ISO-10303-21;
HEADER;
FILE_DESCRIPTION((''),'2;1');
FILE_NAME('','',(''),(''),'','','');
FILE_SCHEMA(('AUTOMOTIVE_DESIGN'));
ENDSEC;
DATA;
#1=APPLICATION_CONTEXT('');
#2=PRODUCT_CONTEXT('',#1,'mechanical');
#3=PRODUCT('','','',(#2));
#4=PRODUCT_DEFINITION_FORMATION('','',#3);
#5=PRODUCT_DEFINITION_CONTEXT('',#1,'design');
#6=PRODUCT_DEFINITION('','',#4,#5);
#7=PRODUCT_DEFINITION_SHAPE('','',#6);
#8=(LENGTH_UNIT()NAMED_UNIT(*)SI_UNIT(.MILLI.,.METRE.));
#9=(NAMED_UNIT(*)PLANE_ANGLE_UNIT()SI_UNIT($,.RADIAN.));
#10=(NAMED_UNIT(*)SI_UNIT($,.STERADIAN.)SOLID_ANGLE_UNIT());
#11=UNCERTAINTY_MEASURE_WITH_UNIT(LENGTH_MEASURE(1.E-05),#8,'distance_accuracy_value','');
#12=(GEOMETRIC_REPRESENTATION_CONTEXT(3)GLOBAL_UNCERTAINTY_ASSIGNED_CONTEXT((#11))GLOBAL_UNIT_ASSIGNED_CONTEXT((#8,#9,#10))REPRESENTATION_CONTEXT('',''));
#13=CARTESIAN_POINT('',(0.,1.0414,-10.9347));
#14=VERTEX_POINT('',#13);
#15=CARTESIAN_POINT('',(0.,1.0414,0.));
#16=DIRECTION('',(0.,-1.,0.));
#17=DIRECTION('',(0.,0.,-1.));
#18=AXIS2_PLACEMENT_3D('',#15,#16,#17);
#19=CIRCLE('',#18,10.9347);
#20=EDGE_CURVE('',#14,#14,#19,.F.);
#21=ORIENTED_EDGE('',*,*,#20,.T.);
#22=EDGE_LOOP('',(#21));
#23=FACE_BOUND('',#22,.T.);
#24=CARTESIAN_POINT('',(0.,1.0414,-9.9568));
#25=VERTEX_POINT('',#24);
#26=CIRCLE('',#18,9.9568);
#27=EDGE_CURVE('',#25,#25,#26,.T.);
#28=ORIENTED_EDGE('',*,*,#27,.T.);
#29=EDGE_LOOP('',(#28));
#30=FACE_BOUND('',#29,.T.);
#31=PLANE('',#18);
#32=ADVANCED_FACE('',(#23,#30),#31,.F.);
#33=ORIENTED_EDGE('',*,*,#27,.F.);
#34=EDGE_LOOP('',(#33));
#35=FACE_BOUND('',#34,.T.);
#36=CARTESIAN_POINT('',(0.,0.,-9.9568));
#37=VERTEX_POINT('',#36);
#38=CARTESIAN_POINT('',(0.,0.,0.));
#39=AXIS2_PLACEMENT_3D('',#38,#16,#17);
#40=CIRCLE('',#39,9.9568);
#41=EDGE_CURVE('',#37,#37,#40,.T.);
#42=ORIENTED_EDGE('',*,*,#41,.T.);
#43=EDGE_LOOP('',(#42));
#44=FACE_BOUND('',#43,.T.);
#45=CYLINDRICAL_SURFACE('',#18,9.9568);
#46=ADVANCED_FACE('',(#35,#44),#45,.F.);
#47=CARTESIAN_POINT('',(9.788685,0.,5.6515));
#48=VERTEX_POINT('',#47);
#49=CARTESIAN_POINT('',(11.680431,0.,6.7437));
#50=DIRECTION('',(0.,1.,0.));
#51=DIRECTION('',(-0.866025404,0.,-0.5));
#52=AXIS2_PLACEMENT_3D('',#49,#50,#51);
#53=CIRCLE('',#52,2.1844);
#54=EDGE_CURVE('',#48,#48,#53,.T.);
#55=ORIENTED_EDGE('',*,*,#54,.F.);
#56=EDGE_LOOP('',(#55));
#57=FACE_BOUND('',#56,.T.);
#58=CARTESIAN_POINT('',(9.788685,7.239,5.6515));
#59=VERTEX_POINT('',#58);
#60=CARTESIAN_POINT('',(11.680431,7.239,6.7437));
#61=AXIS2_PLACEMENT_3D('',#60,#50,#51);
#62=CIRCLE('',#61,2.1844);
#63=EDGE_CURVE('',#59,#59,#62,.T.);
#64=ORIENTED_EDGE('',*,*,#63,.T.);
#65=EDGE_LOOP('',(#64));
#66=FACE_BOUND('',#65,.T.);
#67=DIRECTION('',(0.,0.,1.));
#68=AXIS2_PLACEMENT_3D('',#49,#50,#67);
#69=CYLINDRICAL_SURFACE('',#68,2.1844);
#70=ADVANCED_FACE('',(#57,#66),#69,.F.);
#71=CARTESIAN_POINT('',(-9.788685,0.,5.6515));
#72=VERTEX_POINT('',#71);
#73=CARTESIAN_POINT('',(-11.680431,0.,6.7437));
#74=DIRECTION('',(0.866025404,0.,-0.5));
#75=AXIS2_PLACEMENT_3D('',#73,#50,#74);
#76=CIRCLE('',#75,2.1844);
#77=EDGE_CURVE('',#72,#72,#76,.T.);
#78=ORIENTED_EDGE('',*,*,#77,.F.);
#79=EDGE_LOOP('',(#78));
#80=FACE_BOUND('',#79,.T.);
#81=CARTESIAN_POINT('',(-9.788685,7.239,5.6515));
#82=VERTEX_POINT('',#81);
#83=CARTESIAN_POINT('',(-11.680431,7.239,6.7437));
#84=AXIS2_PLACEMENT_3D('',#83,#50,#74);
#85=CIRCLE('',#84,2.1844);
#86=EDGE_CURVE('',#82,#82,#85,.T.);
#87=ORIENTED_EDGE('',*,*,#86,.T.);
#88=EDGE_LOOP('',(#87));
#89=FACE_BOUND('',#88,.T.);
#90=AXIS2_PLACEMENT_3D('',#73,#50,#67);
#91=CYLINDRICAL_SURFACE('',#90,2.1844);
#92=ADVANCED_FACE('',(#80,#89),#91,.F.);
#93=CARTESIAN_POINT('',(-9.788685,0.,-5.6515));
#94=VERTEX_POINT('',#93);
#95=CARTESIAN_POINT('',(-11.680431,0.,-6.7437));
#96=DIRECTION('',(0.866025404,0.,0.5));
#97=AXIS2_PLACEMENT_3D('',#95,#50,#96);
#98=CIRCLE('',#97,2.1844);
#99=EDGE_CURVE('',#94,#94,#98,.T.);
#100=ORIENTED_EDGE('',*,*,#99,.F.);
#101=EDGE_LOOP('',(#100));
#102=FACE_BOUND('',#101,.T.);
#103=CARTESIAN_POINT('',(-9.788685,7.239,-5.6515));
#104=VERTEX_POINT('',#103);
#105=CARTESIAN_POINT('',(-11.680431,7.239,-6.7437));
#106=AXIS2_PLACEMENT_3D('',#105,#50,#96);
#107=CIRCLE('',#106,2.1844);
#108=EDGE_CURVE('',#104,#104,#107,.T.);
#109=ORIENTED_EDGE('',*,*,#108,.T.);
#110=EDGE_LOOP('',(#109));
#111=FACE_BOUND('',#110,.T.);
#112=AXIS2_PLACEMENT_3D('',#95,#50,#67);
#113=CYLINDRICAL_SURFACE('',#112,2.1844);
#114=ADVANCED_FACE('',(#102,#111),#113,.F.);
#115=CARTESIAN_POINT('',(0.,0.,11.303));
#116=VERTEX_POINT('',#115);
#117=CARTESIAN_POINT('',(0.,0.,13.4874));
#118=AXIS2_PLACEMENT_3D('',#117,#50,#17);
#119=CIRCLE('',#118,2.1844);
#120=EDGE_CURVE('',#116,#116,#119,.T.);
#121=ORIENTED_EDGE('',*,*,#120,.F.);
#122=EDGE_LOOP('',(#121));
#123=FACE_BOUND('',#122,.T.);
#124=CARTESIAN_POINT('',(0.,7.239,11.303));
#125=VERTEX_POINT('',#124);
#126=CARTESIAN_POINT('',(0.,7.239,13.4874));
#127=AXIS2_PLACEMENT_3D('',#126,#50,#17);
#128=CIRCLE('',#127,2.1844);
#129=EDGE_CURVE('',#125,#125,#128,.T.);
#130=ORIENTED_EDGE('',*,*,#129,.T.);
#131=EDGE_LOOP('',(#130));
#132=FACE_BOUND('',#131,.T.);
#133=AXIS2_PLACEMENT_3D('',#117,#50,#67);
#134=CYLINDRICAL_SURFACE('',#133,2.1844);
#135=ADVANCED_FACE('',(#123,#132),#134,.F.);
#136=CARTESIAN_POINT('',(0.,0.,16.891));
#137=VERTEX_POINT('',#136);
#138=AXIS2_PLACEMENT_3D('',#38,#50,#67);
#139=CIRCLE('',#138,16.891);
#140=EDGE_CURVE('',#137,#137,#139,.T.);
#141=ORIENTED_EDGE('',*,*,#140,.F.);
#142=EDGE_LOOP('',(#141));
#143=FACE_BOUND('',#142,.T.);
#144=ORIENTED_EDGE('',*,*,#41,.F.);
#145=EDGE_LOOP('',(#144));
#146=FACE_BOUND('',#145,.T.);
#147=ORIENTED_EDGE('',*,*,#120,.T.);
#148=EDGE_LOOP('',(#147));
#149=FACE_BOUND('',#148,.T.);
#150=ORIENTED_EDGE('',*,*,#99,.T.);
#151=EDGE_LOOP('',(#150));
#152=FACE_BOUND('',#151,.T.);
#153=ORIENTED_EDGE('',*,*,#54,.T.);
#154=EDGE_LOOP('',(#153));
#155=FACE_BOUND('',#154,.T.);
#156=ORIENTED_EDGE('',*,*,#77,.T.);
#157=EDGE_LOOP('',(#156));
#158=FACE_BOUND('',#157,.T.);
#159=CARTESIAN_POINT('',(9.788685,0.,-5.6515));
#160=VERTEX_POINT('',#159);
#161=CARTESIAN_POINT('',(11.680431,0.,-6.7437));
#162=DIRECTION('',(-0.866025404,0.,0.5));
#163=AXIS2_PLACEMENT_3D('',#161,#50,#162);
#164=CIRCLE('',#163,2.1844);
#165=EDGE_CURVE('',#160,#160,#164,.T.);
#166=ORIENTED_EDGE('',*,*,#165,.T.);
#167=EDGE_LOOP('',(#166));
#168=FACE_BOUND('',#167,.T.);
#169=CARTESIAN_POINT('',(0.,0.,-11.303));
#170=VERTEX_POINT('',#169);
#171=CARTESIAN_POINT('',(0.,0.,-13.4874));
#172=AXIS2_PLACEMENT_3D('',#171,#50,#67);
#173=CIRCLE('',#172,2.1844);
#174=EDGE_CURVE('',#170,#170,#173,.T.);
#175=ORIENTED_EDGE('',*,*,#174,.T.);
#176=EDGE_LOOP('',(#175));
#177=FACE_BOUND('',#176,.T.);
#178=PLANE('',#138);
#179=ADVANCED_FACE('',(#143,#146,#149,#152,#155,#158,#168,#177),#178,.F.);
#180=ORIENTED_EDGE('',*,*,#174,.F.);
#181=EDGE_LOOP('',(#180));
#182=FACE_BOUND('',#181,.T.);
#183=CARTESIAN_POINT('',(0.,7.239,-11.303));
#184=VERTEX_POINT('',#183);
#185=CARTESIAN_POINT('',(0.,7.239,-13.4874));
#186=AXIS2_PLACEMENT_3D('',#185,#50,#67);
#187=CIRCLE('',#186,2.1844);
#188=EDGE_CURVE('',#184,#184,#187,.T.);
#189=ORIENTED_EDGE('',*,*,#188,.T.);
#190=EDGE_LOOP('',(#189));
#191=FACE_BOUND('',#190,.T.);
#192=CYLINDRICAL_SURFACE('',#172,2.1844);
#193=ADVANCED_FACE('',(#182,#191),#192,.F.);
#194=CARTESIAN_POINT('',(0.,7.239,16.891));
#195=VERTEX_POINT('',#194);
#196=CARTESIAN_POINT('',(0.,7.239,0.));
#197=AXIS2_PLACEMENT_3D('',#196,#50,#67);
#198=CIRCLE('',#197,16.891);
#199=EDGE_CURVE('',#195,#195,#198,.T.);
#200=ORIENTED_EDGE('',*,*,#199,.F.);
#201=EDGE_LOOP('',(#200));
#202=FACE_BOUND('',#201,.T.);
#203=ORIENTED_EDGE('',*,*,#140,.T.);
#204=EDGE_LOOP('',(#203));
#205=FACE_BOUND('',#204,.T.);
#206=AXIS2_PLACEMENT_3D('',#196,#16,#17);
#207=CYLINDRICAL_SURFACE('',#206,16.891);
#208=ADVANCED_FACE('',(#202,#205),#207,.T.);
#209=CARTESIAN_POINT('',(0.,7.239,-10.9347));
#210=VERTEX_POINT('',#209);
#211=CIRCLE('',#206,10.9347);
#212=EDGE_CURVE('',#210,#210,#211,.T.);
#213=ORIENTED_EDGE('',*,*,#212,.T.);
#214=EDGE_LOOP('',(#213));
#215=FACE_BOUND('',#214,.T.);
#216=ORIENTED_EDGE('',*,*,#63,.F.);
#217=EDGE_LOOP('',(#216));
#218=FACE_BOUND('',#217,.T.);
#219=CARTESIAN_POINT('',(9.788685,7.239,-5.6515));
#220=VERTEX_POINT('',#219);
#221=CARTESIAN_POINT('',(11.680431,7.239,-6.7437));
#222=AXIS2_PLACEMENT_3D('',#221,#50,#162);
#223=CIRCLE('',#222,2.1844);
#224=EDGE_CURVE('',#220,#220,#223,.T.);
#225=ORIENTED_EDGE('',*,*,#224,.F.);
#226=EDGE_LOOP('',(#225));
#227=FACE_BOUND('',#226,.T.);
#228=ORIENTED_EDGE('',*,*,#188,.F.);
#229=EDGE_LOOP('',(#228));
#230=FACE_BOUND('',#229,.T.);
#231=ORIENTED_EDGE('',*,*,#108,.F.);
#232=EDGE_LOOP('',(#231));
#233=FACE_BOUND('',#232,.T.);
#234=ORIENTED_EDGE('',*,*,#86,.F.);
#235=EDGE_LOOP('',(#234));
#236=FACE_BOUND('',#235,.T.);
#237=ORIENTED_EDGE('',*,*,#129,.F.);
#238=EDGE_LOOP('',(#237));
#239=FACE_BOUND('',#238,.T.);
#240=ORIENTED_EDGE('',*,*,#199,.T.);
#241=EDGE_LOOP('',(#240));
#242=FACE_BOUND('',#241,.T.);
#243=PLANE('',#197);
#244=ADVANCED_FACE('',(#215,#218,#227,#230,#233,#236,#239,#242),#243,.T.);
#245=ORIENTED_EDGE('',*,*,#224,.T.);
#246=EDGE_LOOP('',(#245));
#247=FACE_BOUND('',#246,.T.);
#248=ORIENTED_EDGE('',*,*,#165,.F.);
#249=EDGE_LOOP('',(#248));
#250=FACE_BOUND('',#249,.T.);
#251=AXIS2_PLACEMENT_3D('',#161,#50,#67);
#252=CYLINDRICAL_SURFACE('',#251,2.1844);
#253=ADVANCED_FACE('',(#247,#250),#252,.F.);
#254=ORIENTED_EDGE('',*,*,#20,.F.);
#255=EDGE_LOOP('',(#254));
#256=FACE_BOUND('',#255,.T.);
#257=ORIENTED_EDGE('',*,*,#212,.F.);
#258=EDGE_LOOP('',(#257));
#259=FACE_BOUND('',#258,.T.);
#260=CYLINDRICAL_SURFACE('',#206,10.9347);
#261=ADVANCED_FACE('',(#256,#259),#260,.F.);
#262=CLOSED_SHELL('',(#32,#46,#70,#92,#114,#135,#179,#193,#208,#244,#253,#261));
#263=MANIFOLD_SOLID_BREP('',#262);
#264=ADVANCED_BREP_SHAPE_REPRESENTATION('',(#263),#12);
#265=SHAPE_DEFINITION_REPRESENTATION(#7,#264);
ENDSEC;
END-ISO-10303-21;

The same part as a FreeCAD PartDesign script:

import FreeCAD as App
import Part
import Sketcher
Q = App.Units.Quantity

doc = App.newDocument("Part")
body = doc.addObject("PartDesign::Body", "Body")

# Sketch on XZ plane
sketch1 = doc.addObject("Sketcher::SketchObject", "Sketch")
body.addObject(sketch1)
sketch1.AttachmentSupport = (doc.XZ_Plane, [""])
sketch1.MapMode = "FlatFace"
sketch1.addGeometry(Part.Circle(App.Vector(0, 0, 0), App.Vector(0, 0, 1), 17), False)
sketch1.addConstraint(Sketcher.Constraint("Coincident", 0, 3, -1, 1))
sketch1.addConstraint(Sketcher.Constraint("Diameter", 0, Q("1.33 in")))
pad1 = doc.addObject("PartDesign::Pad", "Pad")
body.addObject(pad1)
pad1.Profile = sketch1
pad1.Length = Q("0.285 in")
pad1.Reversed = True

# Sketch on XZ plane
sketch2 = doc.addObject("Sketcher::SketchObject", "Sketch001")
body.addObject(sketch2)
sketch2.AttachmentSupport = (doc.XZ_Plane, [""])
sketch2.MapMode = "FlatFace"
sketch2.addGeometry(Part.Circle(App.Vector(0, 0, 0), App.Vector(0, 0, 1), 11), False)
sketch2.addConstraint(Sketcher.Constraint("Coincident", 0, 3, -1, 1))
sketch2.addConstraint(Sketcher.Constraint("Diameter", 0, Q("0.861 in")))
pocket1 = doc.addObject("PartDesign::Pocket", "Pocket")
body.addObject(pocket1)
pocket1.Profile = sketch2
pocket1.Type = "ThroughAll"

# Sketch on XZ plane
sketch3 = doc.addObject("Sketcher::SketchObject", "Sketch002")
body.addObject(sketch3)
sketch3.AttachmentSupport = (doc.XZ_Plane, [""])
sketch3.MapMode = "FlatFace"
sketch3.addGeometry(Part.Circle(App.Vector(0, 0, 0), App.Vector(0, 0, 1), 11), False)
sketch3.addGeometry(Part.Circle(App.Vector(0, 0, 0), App.Vector(0, 0, 1), 10), False)
sketch3.addConstraint(Sketcher.Constraint("Coincident", 0, 3, -1, 1))
sketch3.addConstraint(Sketcher.Constraint("Coincident", 1, 3, -1, 1))
sketch3.addConstraint(Sketcher.Constraint("Diameter", 0, Q("0.861 in")))
sketch3.addConstraint(Sketcher.Constraint("Diameter", 1, Q("0.784 in")))
pad2 = doc.addObject("PartDesign::Pad", "Pad001")
body.addObject(pad2)
pad2.Profile = sketch3
pad2.Length = Q("0.041 in")
pad2.Reversed = True

# Sketch on XZ plane
sketch4 = doc.addObject("Sketcher::SketchObject", "Sketch003")
body.addObject(sketch4)
sketch4.AttachmentSupport = (doc.XZ_Plane, [""])
sketch4.MapMode = "FlatFace"
sketch4.AttachmentOffset = App.Placement(App.Vector(0, 0, -0.285 * 25.4), App.Rotation())
sketch4.addGeometry(Part.Circle(App.Vector(0, -13.5, 0), App.Vector(0, 0, 1), 2.2), False)
sketch4.addConstraint(Sketcher.Constraint("PointOnObject", 0, 3, -2))
sketch4.addConstraint(Sketcher.Constraint("Diameter", 0, Q("0.172 in")))
sketch4.addConstraint(Sketcher.Constraint("DistanceY", 0, 3, -1, 1, Q("0.531 in")))
pocket2 = doc.addObject("PartDesign::Pocket", "Pocket001")
body.addObject(pocket2)
pocket2.Profile = sketch4
pocket2.Type = "ThroughAll"
pocket2.Reversed = True
doc.recompute()

polarpattern = doc.addObject("PartDesign::PolarPattern", "PolarPattern")
body.addObject(polarpattern)
polarpattern.Originals = [pocket2]
polarpattern.Axis = (doc.Y_Axis, [""])
polarpattern.Angle = 360
polarpattern.Occurrences = 6
body.Tip = polarpattern

doc.recompute()
